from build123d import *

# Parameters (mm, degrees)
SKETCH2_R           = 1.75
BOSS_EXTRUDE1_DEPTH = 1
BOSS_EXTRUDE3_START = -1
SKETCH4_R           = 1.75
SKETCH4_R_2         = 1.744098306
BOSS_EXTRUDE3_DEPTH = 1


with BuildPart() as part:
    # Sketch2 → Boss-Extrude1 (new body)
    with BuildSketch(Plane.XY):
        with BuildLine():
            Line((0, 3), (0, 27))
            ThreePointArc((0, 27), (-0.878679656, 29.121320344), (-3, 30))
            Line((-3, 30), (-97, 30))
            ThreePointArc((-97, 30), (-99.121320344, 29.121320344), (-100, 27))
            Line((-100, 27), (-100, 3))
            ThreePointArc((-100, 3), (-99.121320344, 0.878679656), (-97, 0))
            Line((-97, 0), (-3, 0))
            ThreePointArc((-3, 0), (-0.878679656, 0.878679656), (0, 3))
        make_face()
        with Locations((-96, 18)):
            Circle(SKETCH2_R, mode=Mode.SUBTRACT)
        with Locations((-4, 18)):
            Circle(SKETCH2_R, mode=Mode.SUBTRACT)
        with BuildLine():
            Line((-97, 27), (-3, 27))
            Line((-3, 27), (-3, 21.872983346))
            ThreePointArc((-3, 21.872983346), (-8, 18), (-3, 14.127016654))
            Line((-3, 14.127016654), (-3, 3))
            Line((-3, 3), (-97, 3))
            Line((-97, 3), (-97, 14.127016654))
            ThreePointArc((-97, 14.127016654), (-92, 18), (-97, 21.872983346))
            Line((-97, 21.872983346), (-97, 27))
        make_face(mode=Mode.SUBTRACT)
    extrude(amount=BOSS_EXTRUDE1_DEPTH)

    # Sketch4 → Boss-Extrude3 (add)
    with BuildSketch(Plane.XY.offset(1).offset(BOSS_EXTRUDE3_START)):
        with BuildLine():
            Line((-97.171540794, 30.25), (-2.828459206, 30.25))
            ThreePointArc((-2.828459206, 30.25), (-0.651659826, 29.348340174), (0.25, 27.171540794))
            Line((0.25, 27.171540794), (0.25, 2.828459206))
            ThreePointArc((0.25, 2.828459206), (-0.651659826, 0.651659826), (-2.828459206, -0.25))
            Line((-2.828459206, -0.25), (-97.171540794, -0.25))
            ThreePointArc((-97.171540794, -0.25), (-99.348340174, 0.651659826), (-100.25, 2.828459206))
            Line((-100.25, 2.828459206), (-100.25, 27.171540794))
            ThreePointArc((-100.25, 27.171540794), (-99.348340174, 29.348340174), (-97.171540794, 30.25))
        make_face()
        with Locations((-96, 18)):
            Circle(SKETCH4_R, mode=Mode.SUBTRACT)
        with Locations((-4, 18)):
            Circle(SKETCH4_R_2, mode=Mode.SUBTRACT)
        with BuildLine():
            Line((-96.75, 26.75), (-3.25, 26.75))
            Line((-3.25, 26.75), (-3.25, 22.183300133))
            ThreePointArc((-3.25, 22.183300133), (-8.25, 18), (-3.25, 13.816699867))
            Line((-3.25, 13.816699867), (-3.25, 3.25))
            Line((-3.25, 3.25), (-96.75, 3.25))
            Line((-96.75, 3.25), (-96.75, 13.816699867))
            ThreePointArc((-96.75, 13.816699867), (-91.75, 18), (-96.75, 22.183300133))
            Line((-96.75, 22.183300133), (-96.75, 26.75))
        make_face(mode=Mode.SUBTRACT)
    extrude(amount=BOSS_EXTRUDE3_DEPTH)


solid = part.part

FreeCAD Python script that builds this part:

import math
import FreeCAD as App
import Part
import Sketcher
Q = App.Units.Quantity

doc = App.newDocument("Part")
params = doc.addObject("Spreadsheet::Sheet", "Params")
for row, (alias, value) in enumerate([
    ("sketch1_radius", "3 mm"),
    ("sketch1_radius2", "4 mm"),
    ("sketch1_diameter", "3.5 mm"),
    ("sketch1_width", "94 mm"),
    ("sketch1_height", "24 mm"),
    ("pad1_length", "1 mm"),
    ("sketch2_diameter", "3.5 mm"),
    ("sketch2_radius", "4.25 mm"),
    ("sketch2_width", "93.5 mm"),
    ("pad2_length", "1 mm"),
], start=1):
    params.set(f"A{row}", alias)
    params.set(f"B{row}", "=" + value)
    params.setAlias(f"B{row}", alias)

body = doc.addObject("PartDesign::Body", "Body")

# Sketch on XY plane
sketch1 = body.newObject("Sketcher::SketchObject", "Sketch")
sketch1.AttachmentSupport = (doc.getObject("XY_Plane"), [""])
sketch1.MapMode = "FlatFace"
sketch1.addGeometry([
    Part.LineSegment(App.Vector(0, 3, 0), App.Vector(0, 27, 0)),  # 0
    Part.ArcOfCircle(Part.Circle(App.Vector(-3, 27, 0), App.Vector(0, 0, 1), 3), math.radians(0), math.radians(90)),  # 1
    Part.LineSegment(App.Vector(-3, 30, 0), App.Vector(-97, 30, 0)),  # 2
    Part.ArcOfCircle(Part.Circle(App.Vector(-97, 27, 0), App.Vector(0, 0, 1), 3), math.radians(90), math.radians(180)),  # 3
    Part.LineSegment(App.Vector(-100, 27, 0), App.Vector(-100, 3, 0)),  # 4
    Part.ArcOfCircle(Part.Circle(App.Vector(-97, 3, 0), App.Vector(0, 0, 1), 3), math.radians(180), math.radians(270)),  # 5
    Part.LineSegment(App.Vector(-97, 0, 0), App.Vector(-3, 0, 0)),  # 6
    Part.ArcOfCircle(Part.Circle(App.Vector(-3, 3, 0), App.Vector(0, 0, 1), 3), math.radians(-90), math.radians(0)),  # 7
    Part.Circle(App.Vector(-96, 18, 0), App.Vector(0, 0, 1), 1.75),  # 8
    Part.LineSegment(App.Vector(-97, 21.872983, 0), App.Vector(-97, 27, 0)),  # 9
    Part.LineSegment(App.Vector(-97, 27, 0), App.Vector(-3, 27, 0)),  # 10
    Part.LineSegment(App.Vector(-3, 27, 0), App.Vector(-3, 21.872983, 0)),  # 11
    Part.ArcOfCircle(Part.Circle(App.Vector(-4, 18, 0), App.Vector(0, 0, 1), 4), math.radians(75.522488), math.radians(284.477512)),  # 12
    Part.LineSegment(App.Vector(-3, 14.127017, 0), App.Vector(-3, 3, 0)),  # 13
    Part.LineSegment(App.Vector(-3, 3, 0), App.Vector(-97, 3, 0)),  # 14
    Part.LineSegment(App.Vector(-97, 3, 0), App.Vector(-97, 14.127017, 0)),  # 15
    Part.ArcOfCircle(Part.Circle(App.Vector(-96, 18, 0), App.Vector(0, 0, 1), 4), math.radians(-104.477512), math.radians(104.477512)),  # 16
    Part.Circle(App.Vector(-4, 18, 0), App.Vector(0, 0, 1), 1.75),  # 17
], False)
sketch1.addConstraint([
    Sketcher.Constraint("Tangent", 0, 2, 1, 1),
    Sketcher.Constraint("Tangent", 1, 2, 2, 1),
    Sketcher.Constraint("Tangent", 2, 2, 3, 1),
    Sketcher.Constraint("Tangent", 3, 2, 4, 1),
    Sketcher.Constraint("Tangent", 4, 2, 5, 1),
    Sketcher.Constraint("Tangent", 5, 2, 6, 1),
    Sketcher.Constraint("Tangent", 6, 2, 7, 1),
    Sketcher.Constraint("Tangent", 7, 2, 0, 1),
    Sketcher.Constraint("Coincident", 9, 2, 10, 1),
    Sketcher.Constraint("Coincident", 10, 2, 11, 1),
    Sketcher.Constraint("Coincident", 11, 2, 12, 1),
    Sketcher.Constraint("Coincident", 12, 2, 13, 1),
    Sketcher.Constraint("Coincident", 13, 2, 14, 1),
    Sketcher.Constraint("Coincident", 14, 2, 15, 1),
    Sketcher.Constraint("Coincident", 15, 2, 16, 1),
    Sketcher.Constraint("Coincident", 16, 2, 9, 1),
    Sketcher.Constraint("Vertical", 0),
    Sketcher.Constraint("Horizontal", 2),
    Sketcher.Constraint("Vertical", 4),
    Sketcher.Constraint("Horizontal", 6),
    Sketcher.Constraint("Vertical", 9),
    Sketcher.Constraint("Horizontal", 10),
    Sketcher.Constraint("Vertical", 11),
    Sketcher.Constraint("Vertical", 13),
    Sketcher.Constraint("Horizontal", 14),
    Sketcher.Constraint("Vertical", 15),
    Sketcher.Constraint("Coincident", 16, 3, 8, 3),
    Sketcher.Constraint("Coincident", 17, 3, 12, 3),
    Sketcher.Constraint("Coincident", 9, 2, 3, 3),
    Sketcher.Constraint("Coincident", 10, 2, 1, 3),
    Sketcher.Constraint("Coincident", 13, 2, 7, 3),
    Sketcher.Constraint("Coincident", 14, 2, 5, 3),
    Sketcher.Constraint("Equal", 3, 5),
    Sketcher.Constraint("Equal", 12, 16),
    Sketcher.Constraint("Equal", 8, 17),
    Sketcher.Constraint("PointOnObject", 0, 2, -2),
    Sketcher.Constraint("PointOnObject", 5, 2, -1),
    Sketcher.Constraint("Horizontal", 8, 3, 12, 3),
    Sketcher.Constraint("Horizontal", 12, 2, 15, 2),
    Sketcher.Constraint("Radius", 1, Q("3 mm")),
    Sketcher.Constraint("Radius", 12, Q("4 mm")),
    Sketcher.Constraint("Diameter", 8, Q("3.5 mm")),
    Sketcher.Constraint("DistanceX", 2, 2, 2, 1, Q("94 mm")),
    Sketcher.Constraint("DistanceY", 0, 1, 0, 2, Q("24 mm")),
    Sketcher.Constraint("DistanceX", 8, 3, -1, 1, Q("96 mm")),
    Sketcher.Constraint("DistanceY", -1, 1, 8, 3, Q("18 mm")),
])
sketch1.setExpression("Constraints[39]", "Params.sketch1_radius")
sketch1.setExpression("Constraints[40]", "Params.sketch1_radius2")
sketch1.setExpression("Constraints[41]", "Params.sketch1_diameter")
sketch1.setExpression("Constraints[42]", "Params.sketch1_width")
sketch1.setExpression("Constraints[43]", "Params.sketch1_height")
pad1 = body.newObject("PartDesign::Pad", "Pad")
pad1.Profile = sketch1
pad1.setExpression("Length", "Params.pad1_length")

# Sketch on XY plane
sketch2 = body.newObject("Sketcher::SketchObject", "Sketch001")
sketch2.AttachmentSupport = (doc.getObject("XY_Plane"), [""])
sketch2.MapMode = "FlatFace"
sketch2.addGeometry([
    Part.LineSegment(App.Vector(-2.828459, 30.25, 0), App.Vector(-97.171541, 30.25, 0)),  # 0
    Part.ArcOfCircle(Part.Circle(App.Vector(-97.171541, 27.171541, 0), App.Vector(0, 0, 1), 3.078459), math.radians(90), math.radians(180)),  # 1
    Part.LineSegment(App.Vector(-100.25, 27.171541, 0), App.Vector(-100.25, 2.828459, 0)),  # 2
    Part.ArcOfCircle(Part.Circle(App.Vector(-97.171541, 2.828459, 0), App.Vector(0, 0, 1), 3.078459), math.radians(-180), math.radians(-90)),  # 3
    Part.LineSegment(App.Vector(-97.171541, -0.25, 0), App.Vector(-2.828459, -0.25, 0)),  # 4
    Part.ArcOfCircle(Part.Circle(App.Vector(-2.828459, 2.828459, 0), App.Vector(0, 0, 1), 3.078459), math.radians(-90), math.radians(0)),  # 5
    Part.LineSegment(App.Vector(0.25, 2.828459, 0), App.Vector(0.25, 27.171541, 0)),  # 6
    Part.ArcOfCircle(Part.Circle(App.Vector(-2.828459, 27.171541, 0), App.Vector(0, 0, 1), 3.078459), math.radians(0), math.radians(90)),  # 7
    Part.Circle(App.Vector(-4, 18, 0), App.Vector(0, 0, 1), 1.744098),  # 8
    Part.LineSegment(App.Vector(-96.75, 26.75, 0), App.Vector(-3.25, 26.75, 0)),  # 9
    Part.LineSegment(App.Vector(-3.25, 26.75, 0), App.Vector(-3.25, 22.1833, 0)),  # 10
    Part.ArcOfCircle(Part.Circle(App.Vector(-4, 18, 0), App.Vector(0, 0, 1), 4.25), math.radians(79.835751), math.radians(280.164249)),  # 11
    Part.LineSegment(App.Vector(-3.25, 13.8167, 0), App.Vector(-3.25, 3.25, 0)),  # 12
    Part.LineSegment(App.Vector(-3.25, 3.25, 0), App.Vector(-96.75, 3.25, 0)),  # 13
    Part.LineSegment(App.Vector(-96.75, 3.25, 0), App.Vector(-96.75, 13.8167, 0)),  # 14
    Part.ArcOfCircle(Part.Circle(App.Vector(-96, 18, 0), App.Vector(0, 0, 1), 4.25), math.radians(-100.164249), math.radians(100.164249)),  # 15
    Part.LineSegment(App.Vector(-96.75, 22.1833, 0), App.Vector(-96.75, 26.75, 0)),  # 16
    Part.Circle(App.Vector(-96, 18, 0), App.Vector(0, 0, 1), 1.75),  # 17
], False)
sketch2.addConstraint([
    Sketcher.Constraint("Tangent", 0, 2, 1, 1),
    Sketcher.Constraint("Tangent", 1, 2, 2, 1),
    Sketcher.Constraint("Tangent", 2, 2, 3, 1),
    Sketcher.Constraint("Tangent", 3, 2, 4, 1),
    Sketcher.Constraint("Tangent", 4, 2, 5, 1),
    Sketcher.Constraint("Tangent", 5, 2, 6, 1),
    Sketcher.Constraint("Tangent", 6, 2, 7, 1),
    Sketcher.Constraint("Tangent", 7, 2, 0, 1),
    Sketcher.Constraint("Coincident", 9, 2, 10, 1),
    Sketcher.Constraint("Coincident", 10, 2, 11, 1),
    Sketcher.Constraint("Coincident", 11, 2, 12, 1),
    Sketcher.Constraint("Coincident", 12, 2, 13, 1),
    Sketcher.Constraint("Coincident", 13, 2, 14, 1),
    Sketcher.Constraint("Coincident", 14, 2, 15, 1),
    Sketcher.Constraint("Coincident", 15, 2, 16, 1),
    Sketcher.Constraint("Coincident", 16, 2, 9, 1),
    Sketcher.Constraint("Horizontal", 0),
    Sketcher.Constraint("Vertical", 2),
    Sketcher.Constraint("Horizontal", 4),
    Sketcher.Constraint("Vertical", 6),
    Sketcher.Constraint("Horizontal", 9),
    Sketcher.Constraint("Vertical", 10),
    Sketcher.Constraint("Vertical", 12),
    Sketcher.Constraint("Horizontal", 13),
    Sketcher.Constraint("Vertical", 14),
    Sketcher.Constraint("Vertical", 16),
    Sketcher.Constraint("Coincident", 11, 3, 8, 3),
    Sketcher.Constraint("Coincident", 17, 3, 15, 3),
    Sketcher.Constraint("Equal", 1, 3),
    Sketcher.Constraint("Equal", 3, 5),
    Sketcher.Constraint("Equal", 5, 7),
    Sketcher.Constraint("Equal", 11, 15),
    Sketcher.Constraint("Horizontal", 11, 3, 15, 3),
    Sketcher.Constraint("Horizontal", 11, 2, 14, 2),
    Sketcher.Constraint("Horizontal", 10, 2, 15, 2),
    Sketcher.Constraint("Vertical", 10, 2, 11, 2),
    Sketcher.Constraint("Diameter", 17, Q("3.5 mm")),
    Sketcher.Constraint("Radius", 11, Q("4.25 mm")),
    Sketcher.Constraint("DistanceX", 9, 1, 9, 2, Q("93.5 mm")),
    Sketcher.Constraint("DistanceX", 8, 3, -1, 1, Q("4 mm")),
    Sketcher.Constraint("DistanceY", -1, 1, 8, 3, Q("18 mm")),
    Sketcher.Constraint("DistanceX", 15, 3, -1, 1, Q("96 mm")),
    Sketcher.Constraint("DistanceX", 9, 2, 6, 2, Q("3.5 mm")),
    Sketcher.Constraint("DistanceY", 9, 2, 7, 2, Q("3.5 mm")),
    Sketcher.Constraint("DistanceY", 4, 2, 12, 2, Q("3.5 mm")),
    Sketcher.Constraint("DistanceX", 2, 2, 13, 2, Q("3.5 mm")),
    Sketcher.Constraint("DistanceY", -1, 1, 0, 2, Q("30.25 mm")),
    Sketcher.Constraint("DistanceY", 3, 2, -1, 1, Q("0.25 mm")),
    Sketcher.Constraint("Radius", 1, Q("3.078459 mm")),
    Sketcher.Constraint("Diameter", 8, Q("3.488197 mm")),
])
sketch2.setExpression("Constraints[36]", "Params.sketch2_diameter")
sketch2.setExpression("Constraints[37]", "Params.sketch2_radius")
sketch2.setExpression("Constraints[38]", "Params.sketch2_width")
pad2 = body.newObject("PartDesign::Pad", "Pad001")
pad2.Profile = sketch2
pad2.setExpression("Length", "Params.pad2_length")

doc.recompute()
